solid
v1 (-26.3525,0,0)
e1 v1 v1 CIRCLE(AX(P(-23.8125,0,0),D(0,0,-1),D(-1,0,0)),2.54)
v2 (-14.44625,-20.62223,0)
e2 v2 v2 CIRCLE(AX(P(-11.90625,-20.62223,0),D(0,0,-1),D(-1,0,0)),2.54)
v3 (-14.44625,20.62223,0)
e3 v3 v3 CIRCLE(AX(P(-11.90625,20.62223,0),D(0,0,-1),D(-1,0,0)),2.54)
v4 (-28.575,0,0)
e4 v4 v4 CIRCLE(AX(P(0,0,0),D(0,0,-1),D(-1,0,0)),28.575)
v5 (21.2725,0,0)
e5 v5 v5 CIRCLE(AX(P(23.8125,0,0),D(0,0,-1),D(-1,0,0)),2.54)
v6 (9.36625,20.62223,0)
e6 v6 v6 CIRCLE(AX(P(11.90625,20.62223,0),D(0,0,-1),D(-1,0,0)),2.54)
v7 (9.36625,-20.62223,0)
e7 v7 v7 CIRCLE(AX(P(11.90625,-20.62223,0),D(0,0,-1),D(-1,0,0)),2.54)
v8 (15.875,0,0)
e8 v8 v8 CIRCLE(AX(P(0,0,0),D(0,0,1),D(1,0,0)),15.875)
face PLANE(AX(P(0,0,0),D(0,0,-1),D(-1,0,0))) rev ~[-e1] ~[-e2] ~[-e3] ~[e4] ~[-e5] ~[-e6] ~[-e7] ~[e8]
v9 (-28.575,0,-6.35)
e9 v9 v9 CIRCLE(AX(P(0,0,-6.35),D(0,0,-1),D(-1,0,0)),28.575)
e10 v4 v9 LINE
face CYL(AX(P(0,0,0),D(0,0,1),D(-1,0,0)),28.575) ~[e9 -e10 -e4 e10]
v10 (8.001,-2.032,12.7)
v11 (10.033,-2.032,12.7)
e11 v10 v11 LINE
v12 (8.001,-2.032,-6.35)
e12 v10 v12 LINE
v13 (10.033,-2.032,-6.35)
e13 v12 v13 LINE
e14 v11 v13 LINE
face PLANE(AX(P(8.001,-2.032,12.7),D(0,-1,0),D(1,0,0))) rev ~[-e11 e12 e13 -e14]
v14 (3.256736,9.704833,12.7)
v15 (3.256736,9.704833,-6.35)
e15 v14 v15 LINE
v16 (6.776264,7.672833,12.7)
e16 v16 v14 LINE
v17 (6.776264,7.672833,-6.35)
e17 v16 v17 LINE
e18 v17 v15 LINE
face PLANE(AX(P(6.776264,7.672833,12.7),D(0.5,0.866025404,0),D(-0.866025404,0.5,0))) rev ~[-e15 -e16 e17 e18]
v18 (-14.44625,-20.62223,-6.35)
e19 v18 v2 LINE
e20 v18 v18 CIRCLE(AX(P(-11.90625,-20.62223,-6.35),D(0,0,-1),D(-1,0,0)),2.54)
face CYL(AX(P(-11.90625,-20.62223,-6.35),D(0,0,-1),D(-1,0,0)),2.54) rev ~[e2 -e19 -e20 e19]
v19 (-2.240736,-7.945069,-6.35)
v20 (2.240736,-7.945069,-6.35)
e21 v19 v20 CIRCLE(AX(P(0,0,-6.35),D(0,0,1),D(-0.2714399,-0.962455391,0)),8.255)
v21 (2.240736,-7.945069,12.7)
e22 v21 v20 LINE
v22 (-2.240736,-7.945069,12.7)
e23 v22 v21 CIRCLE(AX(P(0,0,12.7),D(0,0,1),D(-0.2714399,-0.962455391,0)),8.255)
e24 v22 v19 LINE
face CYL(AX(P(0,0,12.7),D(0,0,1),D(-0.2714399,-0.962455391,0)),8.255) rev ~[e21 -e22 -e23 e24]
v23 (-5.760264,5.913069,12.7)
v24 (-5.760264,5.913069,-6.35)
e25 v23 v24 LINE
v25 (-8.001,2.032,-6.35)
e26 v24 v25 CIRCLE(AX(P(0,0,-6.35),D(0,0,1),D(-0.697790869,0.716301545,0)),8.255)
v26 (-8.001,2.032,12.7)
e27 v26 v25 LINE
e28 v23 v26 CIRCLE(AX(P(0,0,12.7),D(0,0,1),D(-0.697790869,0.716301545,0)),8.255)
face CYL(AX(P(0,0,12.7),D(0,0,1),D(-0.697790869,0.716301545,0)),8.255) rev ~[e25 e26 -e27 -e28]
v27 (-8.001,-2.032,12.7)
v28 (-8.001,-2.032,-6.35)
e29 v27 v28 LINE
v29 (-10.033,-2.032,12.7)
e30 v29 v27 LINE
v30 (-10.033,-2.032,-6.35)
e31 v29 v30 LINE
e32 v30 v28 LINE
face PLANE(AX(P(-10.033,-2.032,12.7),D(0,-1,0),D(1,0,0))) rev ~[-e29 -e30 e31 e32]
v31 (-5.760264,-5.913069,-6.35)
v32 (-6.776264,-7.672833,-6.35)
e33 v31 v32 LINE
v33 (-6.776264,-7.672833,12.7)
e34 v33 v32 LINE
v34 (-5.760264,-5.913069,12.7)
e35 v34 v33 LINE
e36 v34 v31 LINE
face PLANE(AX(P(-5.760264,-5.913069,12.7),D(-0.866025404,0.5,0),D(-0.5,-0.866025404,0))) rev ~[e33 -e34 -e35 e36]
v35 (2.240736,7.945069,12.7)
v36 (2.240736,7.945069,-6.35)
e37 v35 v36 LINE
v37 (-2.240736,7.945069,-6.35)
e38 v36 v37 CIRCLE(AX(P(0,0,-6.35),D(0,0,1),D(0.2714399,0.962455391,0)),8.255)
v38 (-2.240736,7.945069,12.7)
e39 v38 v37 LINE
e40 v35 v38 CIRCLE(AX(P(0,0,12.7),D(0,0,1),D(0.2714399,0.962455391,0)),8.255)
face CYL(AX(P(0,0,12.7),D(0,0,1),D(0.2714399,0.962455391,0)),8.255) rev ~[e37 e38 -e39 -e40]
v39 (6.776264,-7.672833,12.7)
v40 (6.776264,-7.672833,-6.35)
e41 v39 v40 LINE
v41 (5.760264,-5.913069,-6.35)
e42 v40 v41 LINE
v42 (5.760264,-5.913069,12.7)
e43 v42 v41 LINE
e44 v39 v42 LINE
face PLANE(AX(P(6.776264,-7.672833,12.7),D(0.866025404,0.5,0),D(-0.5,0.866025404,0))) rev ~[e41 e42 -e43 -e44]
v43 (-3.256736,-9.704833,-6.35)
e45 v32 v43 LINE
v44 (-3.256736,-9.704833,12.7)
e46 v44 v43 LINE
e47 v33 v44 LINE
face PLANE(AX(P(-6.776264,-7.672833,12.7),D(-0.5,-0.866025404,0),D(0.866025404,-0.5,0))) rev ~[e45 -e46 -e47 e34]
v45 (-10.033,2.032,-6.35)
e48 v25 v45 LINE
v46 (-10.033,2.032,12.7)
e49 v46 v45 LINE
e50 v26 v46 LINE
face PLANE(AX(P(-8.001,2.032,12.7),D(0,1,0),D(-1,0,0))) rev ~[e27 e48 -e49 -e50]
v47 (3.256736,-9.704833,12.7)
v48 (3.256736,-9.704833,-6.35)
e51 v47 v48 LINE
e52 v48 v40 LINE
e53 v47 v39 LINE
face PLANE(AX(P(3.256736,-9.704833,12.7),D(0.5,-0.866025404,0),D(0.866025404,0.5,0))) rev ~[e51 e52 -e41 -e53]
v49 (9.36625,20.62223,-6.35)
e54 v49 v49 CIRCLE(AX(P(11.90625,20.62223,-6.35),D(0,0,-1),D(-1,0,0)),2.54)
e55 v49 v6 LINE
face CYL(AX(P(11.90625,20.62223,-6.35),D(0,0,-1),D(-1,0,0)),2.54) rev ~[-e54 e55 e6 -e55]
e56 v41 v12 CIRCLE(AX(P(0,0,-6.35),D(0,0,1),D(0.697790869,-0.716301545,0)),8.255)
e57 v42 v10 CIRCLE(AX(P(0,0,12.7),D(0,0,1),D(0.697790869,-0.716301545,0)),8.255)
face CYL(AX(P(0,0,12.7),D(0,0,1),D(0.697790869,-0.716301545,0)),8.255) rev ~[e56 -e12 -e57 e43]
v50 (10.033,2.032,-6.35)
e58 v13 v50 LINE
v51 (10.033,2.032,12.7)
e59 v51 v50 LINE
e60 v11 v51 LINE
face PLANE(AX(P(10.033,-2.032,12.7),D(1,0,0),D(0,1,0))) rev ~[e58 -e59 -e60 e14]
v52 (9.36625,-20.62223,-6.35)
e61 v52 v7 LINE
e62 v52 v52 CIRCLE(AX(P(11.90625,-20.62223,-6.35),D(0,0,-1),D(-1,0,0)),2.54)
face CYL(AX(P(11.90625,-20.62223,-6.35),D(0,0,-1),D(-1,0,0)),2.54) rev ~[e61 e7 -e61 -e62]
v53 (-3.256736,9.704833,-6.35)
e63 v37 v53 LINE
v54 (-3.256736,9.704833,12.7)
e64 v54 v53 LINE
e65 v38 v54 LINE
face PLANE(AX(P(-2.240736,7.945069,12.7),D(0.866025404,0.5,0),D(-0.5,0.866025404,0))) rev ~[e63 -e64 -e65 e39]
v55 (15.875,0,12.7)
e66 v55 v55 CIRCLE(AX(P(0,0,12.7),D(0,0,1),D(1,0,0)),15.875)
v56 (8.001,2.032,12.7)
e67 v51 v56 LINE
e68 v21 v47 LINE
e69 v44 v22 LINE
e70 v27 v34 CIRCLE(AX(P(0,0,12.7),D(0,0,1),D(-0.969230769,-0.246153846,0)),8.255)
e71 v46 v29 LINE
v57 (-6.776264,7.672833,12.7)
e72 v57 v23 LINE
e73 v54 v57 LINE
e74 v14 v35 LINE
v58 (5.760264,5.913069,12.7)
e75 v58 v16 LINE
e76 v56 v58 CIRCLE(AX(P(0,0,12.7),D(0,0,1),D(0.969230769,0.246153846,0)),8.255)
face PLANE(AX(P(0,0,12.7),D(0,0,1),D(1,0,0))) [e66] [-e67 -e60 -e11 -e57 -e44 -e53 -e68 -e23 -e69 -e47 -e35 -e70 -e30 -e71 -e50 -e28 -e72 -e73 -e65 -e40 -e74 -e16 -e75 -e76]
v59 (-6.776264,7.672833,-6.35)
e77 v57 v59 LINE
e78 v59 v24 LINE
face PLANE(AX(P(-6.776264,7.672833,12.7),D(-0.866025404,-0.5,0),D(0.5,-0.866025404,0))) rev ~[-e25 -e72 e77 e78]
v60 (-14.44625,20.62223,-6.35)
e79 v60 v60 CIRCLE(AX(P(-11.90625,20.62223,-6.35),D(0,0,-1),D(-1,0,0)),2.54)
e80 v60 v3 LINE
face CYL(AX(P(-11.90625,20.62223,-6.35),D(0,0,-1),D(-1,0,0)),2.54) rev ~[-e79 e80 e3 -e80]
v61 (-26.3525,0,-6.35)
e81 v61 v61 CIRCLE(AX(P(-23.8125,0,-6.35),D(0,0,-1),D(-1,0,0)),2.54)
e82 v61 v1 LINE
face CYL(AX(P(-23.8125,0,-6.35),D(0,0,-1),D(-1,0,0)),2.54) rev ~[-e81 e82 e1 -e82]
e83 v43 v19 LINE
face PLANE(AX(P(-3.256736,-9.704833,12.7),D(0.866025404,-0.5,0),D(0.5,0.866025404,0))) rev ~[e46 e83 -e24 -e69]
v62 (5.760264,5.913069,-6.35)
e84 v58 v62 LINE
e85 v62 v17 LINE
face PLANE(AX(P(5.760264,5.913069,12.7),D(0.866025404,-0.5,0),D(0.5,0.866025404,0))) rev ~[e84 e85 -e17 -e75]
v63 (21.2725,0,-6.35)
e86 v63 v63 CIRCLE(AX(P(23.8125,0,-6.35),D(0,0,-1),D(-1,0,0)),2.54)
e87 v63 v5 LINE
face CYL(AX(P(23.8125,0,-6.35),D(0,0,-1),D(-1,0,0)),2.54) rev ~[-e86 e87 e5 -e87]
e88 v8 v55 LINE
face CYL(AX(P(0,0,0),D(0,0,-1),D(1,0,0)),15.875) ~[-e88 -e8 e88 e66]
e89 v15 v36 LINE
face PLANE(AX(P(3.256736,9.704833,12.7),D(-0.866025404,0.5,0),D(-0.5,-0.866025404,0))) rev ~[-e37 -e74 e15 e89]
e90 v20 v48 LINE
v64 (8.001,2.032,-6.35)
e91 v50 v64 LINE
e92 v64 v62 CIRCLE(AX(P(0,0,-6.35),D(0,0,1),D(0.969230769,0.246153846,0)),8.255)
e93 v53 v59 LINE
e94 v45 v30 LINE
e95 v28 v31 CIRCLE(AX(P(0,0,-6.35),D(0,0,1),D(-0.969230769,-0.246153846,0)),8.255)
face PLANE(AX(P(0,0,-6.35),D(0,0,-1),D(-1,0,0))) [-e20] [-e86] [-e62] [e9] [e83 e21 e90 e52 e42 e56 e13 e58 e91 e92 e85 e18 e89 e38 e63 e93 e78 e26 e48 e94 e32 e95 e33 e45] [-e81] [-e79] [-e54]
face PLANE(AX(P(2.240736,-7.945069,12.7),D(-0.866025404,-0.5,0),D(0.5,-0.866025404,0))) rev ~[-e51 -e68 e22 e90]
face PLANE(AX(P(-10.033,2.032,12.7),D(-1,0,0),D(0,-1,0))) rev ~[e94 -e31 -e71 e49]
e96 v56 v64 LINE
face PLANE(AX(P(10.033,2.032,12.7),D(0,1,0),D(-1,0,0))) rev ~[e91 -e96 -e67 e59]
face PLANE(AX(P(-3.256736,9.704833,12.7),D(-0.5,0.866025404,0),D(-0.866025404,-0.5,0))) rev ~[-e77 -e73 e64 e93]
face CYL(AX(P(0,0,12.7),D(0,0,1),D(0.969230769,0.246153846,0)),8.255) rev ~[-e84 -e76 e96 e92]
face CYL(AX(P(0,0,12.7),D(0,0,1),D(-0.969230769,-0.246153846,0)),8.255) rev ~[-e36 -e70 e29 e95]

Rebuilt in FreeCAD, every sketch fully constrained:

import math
import FreeCAD as App
import Part
import Sketcher
Q = App.Units.Quantity

doc = App.newDocument("Part")
body = doc.addObject("PartDesign::Body", "Body")

# Sketch on XY plane
sketch1 = body.newObject("Sketcher::SketchObject", "Sketch")
sketch1.AttachmentSupport = (doc.getObject("XY_Plane"), [""])
sketch1.MapMode = "FlatFace"
sketch1.addGeometry(Part.Circle(App.Vector(0, 0, 0), App.Vector(0, 0, 1), 16), False)
sketch1.addConstraint([
    Sketcher.Constraint("Coincident", 0, 3, -1, 1),
    Sketcher.Constraint("Diameter", 0, Q("1.25 in")),
])
pad1 = body.newObject("PartDesign::Pad", "Pad")
pad1.Profile = sketch1
pad1.Length = Q("0.5 in")

# Sketch on XY plane
sketch2 = body.newObject("Sketcher::SketchObject", "Sketch001")
sketch2.AttachmentSupport = (doc.getObject("XY_Plane"), [""])
sketch2.MapMode = "FlatFace"
sketch2.addGeometry(Part.Circle(App.Vector(0, 0, 0), App.Vector(0, 0, 1), 29), False)
sketch2.addConstraint([
    Sketcher.Constraint("Coincident", 0, 3, -1, 1),
    Sketcher.Constraint("Diameter", 0, Q("2.25 in")),
])
pad2 = body.newObject("PartDesign::Pad", "Pad001")
pad2.Profile = sketch2
pad2.Length = Q("0.25 in")
pad2.Reversed = True

# Sketch on XY plane
sketch3 = body.newObject("Sketcher::SketchObject", "Sketch002")
sketch3.AttachmentSupport = (doc.getObject("XY_Plane"), [""])
sketch3.MapMode = "FlatFace"
sketch3.AttachmentOffset = App.Placement(App.Vector(0, 0, 0.5 * 25.4), App.Rotation())
sketch3.addGeometry([
    Part.LineSegment(App.Vector(6.8, -7.7, 0), App.Vector(5.8, -5.9, 0)),  # 0
    Part.ArcOfCircle(Part.Circle(App.Vector(0, 0, 0), App.Vector(0, 0, 1), 8.3), math.radians(-46), math.radians(-14)),  # 1
    Part.LineSegment(App.Vector(8, -2, 0), App.Vector(10, -2, 0)),  # 2
    Part.LineSegment(App.Vector(10, -2, 0), App.Vector(10, 2, 0)),  # 3
    Part.LineSegment(App.Vector(10, 2, 0), App.Vector(8, 2, 0)),  # 4
    Part.ArcOfCircle(Part.Circle(App.Vector(0, 0, 0), App.Vector(0, 0, 1), 8.3), math.radians(14), math.radians(46)),  # 5
    Part.LineSegment(App.Vector(5.8, 5.9, 0), App.Vector(6.8, 7.7, 0)),  # 6
    Part.LineSegment(App.Vector(6.8, 7.7, 0), App.Vector(3.3, 9.7, 0)),  # 7
    Part.LineSegment(App.Vector(3.3, 9.7, 0), App.Vector(2.2, 7.9, 0)),  # 8
    Part.ArcOfCircle(Part.Circle(App.Vector(0, 0, 0), App.Vector(0, 0, 1), 8.3), math.radians(74), math.radians(106)),  # 9
    Part.LineSegment(App.Vector(-2.2, 7.9, 0), App.Vector(-3.3, 9.7, 0)),  # 10
    Part.LineSegment(App.Vector(-3.3, 9.7, 0), App.Vector(-6.8, 7.7, 0)),  # 11
    Part.LineSegment(App.Vector(-6.8, 7.7, 0), App.Vector(-5.8, 5.9, 0)),  # 12
    Part.ArcOfCircle(Part.Circle(App.Vector(0, 0, 0), App.Vector(0, 0, 1), 8.3), math.radians(134), math.radians(166)),  # 13
    Part.LineSegment(App.Vector(-8, 2, 0), App.Vector(-10, 2, 0)),  # 14
    Part.LineSegment(App.Vector(-10, 2, 0), App.Vector(-10, -2, 0)),  # 15
    Part.LineSegment(App.Vector(-10, -2, 0), App.Vector(-8, -2, 0)),  # 16
    Part.ArcOfCircle(Part.Circle(App.Vector(0, 0, 0), App.Vector(0, 0, 1), 8.3), math.radians(-166), math.radians(-134)),  # 17
    Part.LineSegment(App.Vector(-5.8, -5.9, 0), App.Vector(-6.8, -7.7, 0)),  # 18
    Part.LineSegment(App.Vector(-6.8, -7.7, 0), App.Vector(-3.3, -9.7, 0)),  # 19
    Part.LineSegment(App.Vector(-3.3, -9.7, 0), App.Vector(-2.2, -7.9, 0)),  # 20
    Part.ArcOfCircle(Part.Circle(App.Vector(0, 0, 0), App.Vector(0, 0, 1), 8.3), math.radians(-106), math.radians(-74)),  # 21
    Part.LineSegment(App.Vector(2.2, -7.9, 0), App.Vector(3.3, -9.7, 0)),  # 22
    Part.LineSegment(App.Vector(3.3, -9.7, 0), App.Vector(6.8, -7.7, 0)),  # 23
], False)
sketch3.addConstraint([
    Sketcher.Constraint("Coincident", 0, 2, 1, 1),
    Sketcher.Constraint("Coincident", 1, 2, 2, 1),
    Sketcher.Constraint("Coincident", 2, 2, 3, 1),
    Sketcher.Constraint("Coincident", 3, 2, 4, 1),
    Sketcher.Constraint("Coincident", 4, 2, 5, 1),
    Sketcher.Constraint("Coincident", 5, 2, 6, 1),
    Sketcher.Constraint("Coincident", 6, 2, 7, 1),
    Sketcher.Constraint("Coincident", 7, 2, 8, 1),
    Sketcher.Constraint("Coincident", 8, 2, 9, 1),
    Sketcher.Constraint("Coincident", 9, 2, 10, 1),
    Sketcher.Constraint("Coincident", 10, 2, 11, 1),
    Sketcher.Constraint("Coincident", 11, 2, 12, 1),
    Sketcher.Constraint("Coincident", 12, 2, 13, 1),
    Sketcher.Constraint("Coincident", 13, 2, 14, 1),
    Sketcher.Constraint("Coincident", 14, 2, 15, 1),
    Sketcher.Constraint("Coincident", 15, 2, 16, 1),
    Sketcher.Constraint("Coincident", 16, 2, 17, 1),
    Sketcher.Constraint("Coincident", 17, 2, 18, 1),
    Sketcher.Constraint("Coincident", 18, 2, 19, 1),
    Sketcher.Constraint("Coincident", 19, 2, 20, 1),
    Sketcher.Constraint("Coincident", 20, 2, 21, 1),
    Sketcher.Constraint("Coincident", 21, 2, 22, 1),
    Sketcher.Constraint("Coincident", 22, 2, 23, 1),
    Sketcher.Constraint("Coincident", 23, 2, 0, 1),
    Sketcher.Constraint("Horizontal", 2),
    Sketcher.Constraint("Vertical", 3),
    Sketcher.Constraint("Horizontal", 4),
    Sketcher.Constraint("Horizontal", 14),
    Sketcher.Constraint("Vertical", 15),
    Sketcher.Constraint("Horizontal", 16),
    Sketcher.Constraint("Coincident", 1, 3, -1, 1),
    Sketcher.Constraint("Coincident", 5, 3, -1, 1),
    Sketcher.Constraint("Coincident", 9, 3, -1, 1),
    Sketcher.Constraint("Coincident", 13, 3, -1, 1),
    Sketcher.Constraint("Coincident", 17, 3, -1, 1),
    Sketcher.Constraint("Coincident", 21, 3, -1, 1),
    Sketcher.Constraint("Equal", 1, 5),
    Sketcher.Constraint("Equal", 5, 9),
    Sketcher.Constraint("Equal", 9, 13),
    Sketcher.Constraint("Equal", 13, 17),
    Sketcher.Constraint("Equal", 17, 21),
    Sketcher.Constraint("Symmetric", 2, 2, 14, 2, -1, 1),
    Sketcher.Constraint("Symmetric", 6, 2, 18, 2, -1, 1),
    Sketcher.Constraint("Symmetric", 7, 2, 19, 2, -1, 1),
    Sketcher.Constraint("Symmetric", 10, 2, 22, 2, -1, 1),
    Sketcher.Constraint("Symmetric", 11, 2, 23, 2, -1, 1),
    Sketcher.Constraint("Symmetric", 7, 2, 10, 2, -2),
    Sketcher.Constraint("Symmetric", 6, 2, 11, 2, -2),
    Sketcher.Constraint("Perpendicular", 6, 7),
    Sketcher.Constraint("Perpendicular", 7, 8),
    Sketcher.Constraint("Parallel", 0, 10),
    Sketcher.Constraint("Perpendicular", 10, 11),
    Sketcher.Constraint("Perpendicular", 11, 12),
    Sketcher.Constraint("Parallel", 8, 18),
    Sketcher.Constraint("Perpendicular", 19, 20),
    Sketcher.Constraint("Parallel", 12, 22),
    Sketcher.Constraint("Horizontal", 4, 2, 13, 2),
    Sketcher.Constraint("Horizontal", 2, 2, 15, 2),
    Sketcher.Constraint("Equal", 6, 8),
    Sketcher.Constraint("Angle", 0, Q("120 deg")),
    Sketcher.Constraint("Radius", 1, Q("0.325 in")),
    Sketcher.Constraint("DistanceX", 2, 1, 2, 2, Q("0.08 in")),
    Sketcher.Constraint("DistanceY", 3, 1, 3, 2, Q("0.16 in")),
    Sketcher.Constraint("Distance", 0, Q("0.08 in")),
    Sketcher.Constraint("Distance", 7, Q("0.16 in")),
])
pocket1 = body.newObject("PartDesign::Pocket", "Pocket")
pocket1.Profile = sketch3
pocket1.Length = Q("0.75 in")

# Sketch on XY plane
sketch4 = body.newObject("Sketcher::SketchObject", "Sketch003")
sketch4.AttachmentSupport = (doc.getObject("XY_Plane"), [""])
sketch4.MapMode = "FlatFace"
sketch4.AttachmentOffset = App.Placement(App.Vector(0, 0, -0.25 * 25.4), App.Rotation())
sketch4.addGeometry([
    Part.Circle(App.Vector(23.8, 0, 0), App.Vector(0, 0, 1), 2.5),  # 0
    Part.Circle(App.Vector(11.9, 20.6, 0), App.Vector(0, 0, 1), 2.5),  # 1
    Part.Circle(App.Vector(-11.9, 20.6, 0), App.Vector(0, 0, 1), 2.5),  # 2
    Part.Circle(App.Vector(-23.8, 0, 0), App.Vector(0, 0, 1), 2.5),  # 3
    Part.Circle(App.Vector(-11.9, -20.6, 0), App.Vector(0, 0, 1), 2.5),  # 4
    Part.Circle(App.Vector(11.9, -20.6, 0), App.Vector(0, 0, 1), 2.5),  # 5
], False)
sketch4.addConstraint([
    Sketcher.Constraint("Equal", 0, 1),
    Sketcher.Constraint("Equal", 1, 2),
    Sketcher.Constraint("Equal", 2, 3),
    Sketcher.Constraint("Equal", 3, 4),
    Sketcher.Constraint("Equal", 4, 5),
    Sketcher.Constraint("Symmetric", 0, 3, 3, 3, -1, 1),
    Sketcher.Constraint("Symmetric", 1, 3, 4, 3, -1, 1),
    Sketcher.Constraint("Symmetric", 2, 3, 5, 3, -1, 1),
    Sketcher.Constraint("Symmetric", 1, 3, 2, 3, -2),
    Sketcher.Constraint("PointOnObject", 0, 3, -1),
    Sketcher.Constraint("Diameter", 0, Q("0.2 in")),
    Sketcher.Constraint("DistanceX", -1, 1, 0, 3, Q("0.9375 in")),
    Sketcher.Constraint("DistanceX", -1, 1, 1, 3, Q("0.46875 in")),
    Sketcher.Constraint("DistanceY", -1, 1, 1, 3, 20.62223),
])
pocket2 = body.newObject("PartDesign::Pocket", "Pocket001")
pocket2.Profile = sketch4
pocket2.Length = Q("0.25 in")
pocket2.Reversed = True

doc.recompute()
